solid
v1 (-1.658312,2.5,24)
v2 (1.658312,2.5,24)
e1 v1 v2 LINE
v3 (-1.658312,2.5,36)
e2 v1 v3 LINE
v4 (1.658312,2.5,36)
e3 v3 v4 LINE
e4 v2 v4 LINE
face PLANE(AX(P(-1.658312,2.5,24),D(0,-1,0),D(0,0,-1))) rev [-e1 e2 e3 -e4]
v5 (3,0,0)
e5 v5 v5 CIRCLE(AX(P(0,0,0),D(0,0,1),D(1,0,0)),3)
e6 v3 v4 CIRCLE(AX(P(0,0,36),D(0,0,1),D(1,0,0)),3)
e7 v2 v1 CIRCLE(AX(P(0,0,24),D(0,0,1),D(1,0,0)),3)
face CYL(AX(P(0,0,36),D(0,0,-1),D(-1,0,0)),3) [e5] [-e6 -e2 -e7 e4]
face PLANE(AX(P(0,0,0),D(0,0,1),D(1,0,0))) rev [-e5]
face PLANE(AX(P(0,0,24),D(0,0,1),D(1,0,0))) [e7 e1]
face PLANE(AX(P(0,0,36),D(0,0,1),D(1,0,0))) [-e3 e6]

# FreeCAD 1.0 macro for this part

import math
import FreeCAD as App
import Part
import Sketcher

doc = App.newDocument("Part")
params = doc.addObject("Spreadsheet::Sheet", "Params")
for row, (alias, value) in enumerate([
    ("sketch1_diameter", "6 mm"),
    ("pad1_length", "36 mm"),
    ("sketch2_radius", "3 mm"),
    ("pocket1_length", "12 mm"),
], start=1):
    params.set(f"A{row}", alias)
    params.set(f"B{row}", "=" + value)
    params.setAlias(f"B{row}", alias)

body = doc.addObject("PartDesign::Body", "Body")

# Sketch on XY plane
sketch1 = body.newObject("Sketcher::SketchObject", "Sketch")
sketch1.AttachmentSupport = (doc.getObject("XY_Plane"), [""])
sketch1.MapMode = "FlatFace"
sketch1.addGeometry(Part.Circle(App.Vector(0, 0, 0), App.Vector(0, 0, 1), 3), False)
sketch1.addConstraint([
    Sketcher.Constraint("Coincident", 0, 3, -1, 1),
    Sketcher.Constraint("Diameter", 0, 6.0),
])
sketch1.setExpression("Constraints[1]", "Params.sketch1_diameter")
pad1 = body.newObject("PartDesign::Pad", "Pad")
pad1.Profile = sketch1
pad1.setExpression("Length", "Params.pad1_length")

# Sketch on XY plane
sketch2 = body.newObject("Sketcher::SketchObject", "Sketch001")
sketch2.AttachmentSupport = (doc.getObject("XY_Plane"), [""])
sketch2.MapMode = "FlatFace"
sketch2.AttachmentOffset = App.Placement(App.Vector(0, 0, 36), App.Rotation())
sketch2.addGeometry([
    Part.LineSegment(App.Vector(-1.7, 2.5, 0), App.Vector(1.7, 2.5, 0)),
    Part.ArcOfCircle(Part.Circle(App.Vector(0, 0, 0), App.Vector(0, 0, 1), 3), math.radians(56), math.radians(124)),
], False)
sketch2.addConstraint([
    Sketcher.Constraint("Coincident", 0, 1, 1, 2),
    Sketcher.Constraint("Coincident", 1, 1, 0, 2),
    Sketcher.Constraint("Horizontal", 0),
    Sketcher.Constraint("Coincident", 1, 3, -1, 1),
    Sketcher.Constraint("Radius", 1, 3.0),
    Sketcher.Constraint("DistanceY", -1, 1, 0, 1, 2.5),
])
sketch2.setExpression("Constraints[4]", "Params.sketch2_radius")
pocket1 = body.newObject("PartDesign::Pocket", "Pocket")
pocket1.Profile = sketch2
pocket1.setExpression("Length", "Params.pocket1_length")

doc.recompute()
